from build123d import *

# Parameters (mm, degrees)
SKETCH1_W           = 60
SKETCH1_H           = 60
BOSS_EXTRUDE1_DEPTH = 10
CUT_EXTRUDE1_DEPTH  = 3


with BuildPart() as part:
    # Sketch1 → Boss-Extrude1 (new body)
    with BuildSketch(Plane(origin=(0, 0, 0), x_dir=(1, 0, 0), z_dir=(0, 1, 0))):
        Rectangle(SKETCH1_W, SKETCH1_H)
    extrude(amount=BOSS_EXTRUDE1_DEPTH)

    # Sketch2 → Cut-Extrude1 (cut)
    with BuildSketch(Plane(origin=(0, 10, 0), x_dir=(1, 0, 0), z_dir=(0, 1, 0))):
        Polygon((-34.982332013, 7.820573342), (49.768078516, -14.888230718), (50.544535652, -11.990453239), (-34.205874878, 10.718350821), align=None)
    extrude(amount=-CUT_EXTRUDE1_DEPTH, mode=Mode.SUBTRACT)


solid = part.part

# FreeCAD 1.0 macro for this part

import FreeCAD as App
import Part
import Sketcher

V = App.Vector
Q = App.Units.Quantity

doc = App.newDocument("Part")
body = doc.addObject("PartDesign::Body", "Body")

# Sketch on XZ plane
sketch1 = body.newObject("Sketcher::SketchObject", "Sketch")
sketch1.AttachmentSupport = (doc.getObject("XZ_Plane"), [""])
sketch1.MapMode = "FlatFace"
sketch1.addGeometry([
    Part.LineSegment(V(-30, -30, 0), V(-30, 30, 0)),
    Part.LineSegment(V(-30, 30, 0), V(30, 30, 0)),
    Part.LineSegment(V(30, 30, 0), V(30, -30, 0)),
    Part.LineSegment(V(30, -30, 0), V(-30, -30, 0)),
], False)
sketch1.addConstraint([
    Sketcher.Constraint("Coincident", 0, 2, 1, 1),
    Sketcher.Constraint("Coincident", 1, 2, 2, 1),
    Sketcher.Constraint("Coincident", 2, 2, 3, 1),
    Sketcher.Constraint("Coincident", 3, 2, 0, 1),
    Sketcher.Constraint("Vertical", 0),
    Sketcher.Constraint("Horizontal", 1),
    Sketcher.Constraint("Vertical", 2),
    Sketcher.Constraint("Horizontal", 3),
    Sketcher.Constraint("Symmetric", 0, 2, 2, 2, -1, 1),
    Sketcher.Constraint("Equal", 3, 0),
    Sketcher.Constraint("DistanceX", 1, 1, 1, 2, 60.0),
])
pad1 = body.newObject("PartDesign::Pad", "Pad")
pad1.Profile = sketch1
pad1.Length = 10
pad1.Reversed = True

# Sketch on XZ plane
sketch2 = body.newObject("Sketcher::SketchObject", "Sketch001")
sketch2.AttachmentSupport = (doc.getObject("XZ_Plane"), [""])
sketch2.MapMode = "FlatFace"
sketch2.AttachmentOffset = App.Placement(V(0, 0, -10), App.Rotation())
sketch2.addGeometry([
    Part.LineSegment(V(-35, -7.8, 0), V(49.8, 14.9, 0)),
    Part.LineSegment(V(49.8, 14.9, 0), V(50.5, 12, 0)),
    Part.LineSegment(V(50.5, 12, 0), V(-34.2, -10.7, 0)),
    Part.LineSegment(V(-34.2, -10.7, 0), V(-35, -7.8, 0)),
], False)
sketch2.addConstraint([
    Sketcher.Constraint("Coincident", 0, 2, 1, 1),
    Sketcher.Constraint("Coincident", 1, 2, 2, 1),
    Sketcher.Constraint("Coincident", 2, 2, 3, 1),
    Sketcher.Constraint("Coincident", 3, 2, 0, 1),
    Sketcher.Constraint("Perpendicular", 0, 1),
    Sketcher.Constraint("Perpendicular", 1, 2),
    Sketcher.Constraint("Perpendicular", 2, 3),
    Sketcher.Constraint("Angle", 0, Q("15 deg")),
    Sketcher.Constraint("Distance", 1, 3.0),
    Sketcher.Constraint("Distance", 0, 87.740081),
    Sketcher.Constraint("DistanceX", -1, 1, 0, 2, 49.768079),
    Sketcher.Constraint("DistanceY", -1, 1, 0, 2, 14.888231),
])
pocket1 = body.newObject("PartDesign::Pocket", "Pocket")
pocket1.Profile = sketch2
pocket1.Length = 3
pocket1.Reversed = True

doc.recompute()
